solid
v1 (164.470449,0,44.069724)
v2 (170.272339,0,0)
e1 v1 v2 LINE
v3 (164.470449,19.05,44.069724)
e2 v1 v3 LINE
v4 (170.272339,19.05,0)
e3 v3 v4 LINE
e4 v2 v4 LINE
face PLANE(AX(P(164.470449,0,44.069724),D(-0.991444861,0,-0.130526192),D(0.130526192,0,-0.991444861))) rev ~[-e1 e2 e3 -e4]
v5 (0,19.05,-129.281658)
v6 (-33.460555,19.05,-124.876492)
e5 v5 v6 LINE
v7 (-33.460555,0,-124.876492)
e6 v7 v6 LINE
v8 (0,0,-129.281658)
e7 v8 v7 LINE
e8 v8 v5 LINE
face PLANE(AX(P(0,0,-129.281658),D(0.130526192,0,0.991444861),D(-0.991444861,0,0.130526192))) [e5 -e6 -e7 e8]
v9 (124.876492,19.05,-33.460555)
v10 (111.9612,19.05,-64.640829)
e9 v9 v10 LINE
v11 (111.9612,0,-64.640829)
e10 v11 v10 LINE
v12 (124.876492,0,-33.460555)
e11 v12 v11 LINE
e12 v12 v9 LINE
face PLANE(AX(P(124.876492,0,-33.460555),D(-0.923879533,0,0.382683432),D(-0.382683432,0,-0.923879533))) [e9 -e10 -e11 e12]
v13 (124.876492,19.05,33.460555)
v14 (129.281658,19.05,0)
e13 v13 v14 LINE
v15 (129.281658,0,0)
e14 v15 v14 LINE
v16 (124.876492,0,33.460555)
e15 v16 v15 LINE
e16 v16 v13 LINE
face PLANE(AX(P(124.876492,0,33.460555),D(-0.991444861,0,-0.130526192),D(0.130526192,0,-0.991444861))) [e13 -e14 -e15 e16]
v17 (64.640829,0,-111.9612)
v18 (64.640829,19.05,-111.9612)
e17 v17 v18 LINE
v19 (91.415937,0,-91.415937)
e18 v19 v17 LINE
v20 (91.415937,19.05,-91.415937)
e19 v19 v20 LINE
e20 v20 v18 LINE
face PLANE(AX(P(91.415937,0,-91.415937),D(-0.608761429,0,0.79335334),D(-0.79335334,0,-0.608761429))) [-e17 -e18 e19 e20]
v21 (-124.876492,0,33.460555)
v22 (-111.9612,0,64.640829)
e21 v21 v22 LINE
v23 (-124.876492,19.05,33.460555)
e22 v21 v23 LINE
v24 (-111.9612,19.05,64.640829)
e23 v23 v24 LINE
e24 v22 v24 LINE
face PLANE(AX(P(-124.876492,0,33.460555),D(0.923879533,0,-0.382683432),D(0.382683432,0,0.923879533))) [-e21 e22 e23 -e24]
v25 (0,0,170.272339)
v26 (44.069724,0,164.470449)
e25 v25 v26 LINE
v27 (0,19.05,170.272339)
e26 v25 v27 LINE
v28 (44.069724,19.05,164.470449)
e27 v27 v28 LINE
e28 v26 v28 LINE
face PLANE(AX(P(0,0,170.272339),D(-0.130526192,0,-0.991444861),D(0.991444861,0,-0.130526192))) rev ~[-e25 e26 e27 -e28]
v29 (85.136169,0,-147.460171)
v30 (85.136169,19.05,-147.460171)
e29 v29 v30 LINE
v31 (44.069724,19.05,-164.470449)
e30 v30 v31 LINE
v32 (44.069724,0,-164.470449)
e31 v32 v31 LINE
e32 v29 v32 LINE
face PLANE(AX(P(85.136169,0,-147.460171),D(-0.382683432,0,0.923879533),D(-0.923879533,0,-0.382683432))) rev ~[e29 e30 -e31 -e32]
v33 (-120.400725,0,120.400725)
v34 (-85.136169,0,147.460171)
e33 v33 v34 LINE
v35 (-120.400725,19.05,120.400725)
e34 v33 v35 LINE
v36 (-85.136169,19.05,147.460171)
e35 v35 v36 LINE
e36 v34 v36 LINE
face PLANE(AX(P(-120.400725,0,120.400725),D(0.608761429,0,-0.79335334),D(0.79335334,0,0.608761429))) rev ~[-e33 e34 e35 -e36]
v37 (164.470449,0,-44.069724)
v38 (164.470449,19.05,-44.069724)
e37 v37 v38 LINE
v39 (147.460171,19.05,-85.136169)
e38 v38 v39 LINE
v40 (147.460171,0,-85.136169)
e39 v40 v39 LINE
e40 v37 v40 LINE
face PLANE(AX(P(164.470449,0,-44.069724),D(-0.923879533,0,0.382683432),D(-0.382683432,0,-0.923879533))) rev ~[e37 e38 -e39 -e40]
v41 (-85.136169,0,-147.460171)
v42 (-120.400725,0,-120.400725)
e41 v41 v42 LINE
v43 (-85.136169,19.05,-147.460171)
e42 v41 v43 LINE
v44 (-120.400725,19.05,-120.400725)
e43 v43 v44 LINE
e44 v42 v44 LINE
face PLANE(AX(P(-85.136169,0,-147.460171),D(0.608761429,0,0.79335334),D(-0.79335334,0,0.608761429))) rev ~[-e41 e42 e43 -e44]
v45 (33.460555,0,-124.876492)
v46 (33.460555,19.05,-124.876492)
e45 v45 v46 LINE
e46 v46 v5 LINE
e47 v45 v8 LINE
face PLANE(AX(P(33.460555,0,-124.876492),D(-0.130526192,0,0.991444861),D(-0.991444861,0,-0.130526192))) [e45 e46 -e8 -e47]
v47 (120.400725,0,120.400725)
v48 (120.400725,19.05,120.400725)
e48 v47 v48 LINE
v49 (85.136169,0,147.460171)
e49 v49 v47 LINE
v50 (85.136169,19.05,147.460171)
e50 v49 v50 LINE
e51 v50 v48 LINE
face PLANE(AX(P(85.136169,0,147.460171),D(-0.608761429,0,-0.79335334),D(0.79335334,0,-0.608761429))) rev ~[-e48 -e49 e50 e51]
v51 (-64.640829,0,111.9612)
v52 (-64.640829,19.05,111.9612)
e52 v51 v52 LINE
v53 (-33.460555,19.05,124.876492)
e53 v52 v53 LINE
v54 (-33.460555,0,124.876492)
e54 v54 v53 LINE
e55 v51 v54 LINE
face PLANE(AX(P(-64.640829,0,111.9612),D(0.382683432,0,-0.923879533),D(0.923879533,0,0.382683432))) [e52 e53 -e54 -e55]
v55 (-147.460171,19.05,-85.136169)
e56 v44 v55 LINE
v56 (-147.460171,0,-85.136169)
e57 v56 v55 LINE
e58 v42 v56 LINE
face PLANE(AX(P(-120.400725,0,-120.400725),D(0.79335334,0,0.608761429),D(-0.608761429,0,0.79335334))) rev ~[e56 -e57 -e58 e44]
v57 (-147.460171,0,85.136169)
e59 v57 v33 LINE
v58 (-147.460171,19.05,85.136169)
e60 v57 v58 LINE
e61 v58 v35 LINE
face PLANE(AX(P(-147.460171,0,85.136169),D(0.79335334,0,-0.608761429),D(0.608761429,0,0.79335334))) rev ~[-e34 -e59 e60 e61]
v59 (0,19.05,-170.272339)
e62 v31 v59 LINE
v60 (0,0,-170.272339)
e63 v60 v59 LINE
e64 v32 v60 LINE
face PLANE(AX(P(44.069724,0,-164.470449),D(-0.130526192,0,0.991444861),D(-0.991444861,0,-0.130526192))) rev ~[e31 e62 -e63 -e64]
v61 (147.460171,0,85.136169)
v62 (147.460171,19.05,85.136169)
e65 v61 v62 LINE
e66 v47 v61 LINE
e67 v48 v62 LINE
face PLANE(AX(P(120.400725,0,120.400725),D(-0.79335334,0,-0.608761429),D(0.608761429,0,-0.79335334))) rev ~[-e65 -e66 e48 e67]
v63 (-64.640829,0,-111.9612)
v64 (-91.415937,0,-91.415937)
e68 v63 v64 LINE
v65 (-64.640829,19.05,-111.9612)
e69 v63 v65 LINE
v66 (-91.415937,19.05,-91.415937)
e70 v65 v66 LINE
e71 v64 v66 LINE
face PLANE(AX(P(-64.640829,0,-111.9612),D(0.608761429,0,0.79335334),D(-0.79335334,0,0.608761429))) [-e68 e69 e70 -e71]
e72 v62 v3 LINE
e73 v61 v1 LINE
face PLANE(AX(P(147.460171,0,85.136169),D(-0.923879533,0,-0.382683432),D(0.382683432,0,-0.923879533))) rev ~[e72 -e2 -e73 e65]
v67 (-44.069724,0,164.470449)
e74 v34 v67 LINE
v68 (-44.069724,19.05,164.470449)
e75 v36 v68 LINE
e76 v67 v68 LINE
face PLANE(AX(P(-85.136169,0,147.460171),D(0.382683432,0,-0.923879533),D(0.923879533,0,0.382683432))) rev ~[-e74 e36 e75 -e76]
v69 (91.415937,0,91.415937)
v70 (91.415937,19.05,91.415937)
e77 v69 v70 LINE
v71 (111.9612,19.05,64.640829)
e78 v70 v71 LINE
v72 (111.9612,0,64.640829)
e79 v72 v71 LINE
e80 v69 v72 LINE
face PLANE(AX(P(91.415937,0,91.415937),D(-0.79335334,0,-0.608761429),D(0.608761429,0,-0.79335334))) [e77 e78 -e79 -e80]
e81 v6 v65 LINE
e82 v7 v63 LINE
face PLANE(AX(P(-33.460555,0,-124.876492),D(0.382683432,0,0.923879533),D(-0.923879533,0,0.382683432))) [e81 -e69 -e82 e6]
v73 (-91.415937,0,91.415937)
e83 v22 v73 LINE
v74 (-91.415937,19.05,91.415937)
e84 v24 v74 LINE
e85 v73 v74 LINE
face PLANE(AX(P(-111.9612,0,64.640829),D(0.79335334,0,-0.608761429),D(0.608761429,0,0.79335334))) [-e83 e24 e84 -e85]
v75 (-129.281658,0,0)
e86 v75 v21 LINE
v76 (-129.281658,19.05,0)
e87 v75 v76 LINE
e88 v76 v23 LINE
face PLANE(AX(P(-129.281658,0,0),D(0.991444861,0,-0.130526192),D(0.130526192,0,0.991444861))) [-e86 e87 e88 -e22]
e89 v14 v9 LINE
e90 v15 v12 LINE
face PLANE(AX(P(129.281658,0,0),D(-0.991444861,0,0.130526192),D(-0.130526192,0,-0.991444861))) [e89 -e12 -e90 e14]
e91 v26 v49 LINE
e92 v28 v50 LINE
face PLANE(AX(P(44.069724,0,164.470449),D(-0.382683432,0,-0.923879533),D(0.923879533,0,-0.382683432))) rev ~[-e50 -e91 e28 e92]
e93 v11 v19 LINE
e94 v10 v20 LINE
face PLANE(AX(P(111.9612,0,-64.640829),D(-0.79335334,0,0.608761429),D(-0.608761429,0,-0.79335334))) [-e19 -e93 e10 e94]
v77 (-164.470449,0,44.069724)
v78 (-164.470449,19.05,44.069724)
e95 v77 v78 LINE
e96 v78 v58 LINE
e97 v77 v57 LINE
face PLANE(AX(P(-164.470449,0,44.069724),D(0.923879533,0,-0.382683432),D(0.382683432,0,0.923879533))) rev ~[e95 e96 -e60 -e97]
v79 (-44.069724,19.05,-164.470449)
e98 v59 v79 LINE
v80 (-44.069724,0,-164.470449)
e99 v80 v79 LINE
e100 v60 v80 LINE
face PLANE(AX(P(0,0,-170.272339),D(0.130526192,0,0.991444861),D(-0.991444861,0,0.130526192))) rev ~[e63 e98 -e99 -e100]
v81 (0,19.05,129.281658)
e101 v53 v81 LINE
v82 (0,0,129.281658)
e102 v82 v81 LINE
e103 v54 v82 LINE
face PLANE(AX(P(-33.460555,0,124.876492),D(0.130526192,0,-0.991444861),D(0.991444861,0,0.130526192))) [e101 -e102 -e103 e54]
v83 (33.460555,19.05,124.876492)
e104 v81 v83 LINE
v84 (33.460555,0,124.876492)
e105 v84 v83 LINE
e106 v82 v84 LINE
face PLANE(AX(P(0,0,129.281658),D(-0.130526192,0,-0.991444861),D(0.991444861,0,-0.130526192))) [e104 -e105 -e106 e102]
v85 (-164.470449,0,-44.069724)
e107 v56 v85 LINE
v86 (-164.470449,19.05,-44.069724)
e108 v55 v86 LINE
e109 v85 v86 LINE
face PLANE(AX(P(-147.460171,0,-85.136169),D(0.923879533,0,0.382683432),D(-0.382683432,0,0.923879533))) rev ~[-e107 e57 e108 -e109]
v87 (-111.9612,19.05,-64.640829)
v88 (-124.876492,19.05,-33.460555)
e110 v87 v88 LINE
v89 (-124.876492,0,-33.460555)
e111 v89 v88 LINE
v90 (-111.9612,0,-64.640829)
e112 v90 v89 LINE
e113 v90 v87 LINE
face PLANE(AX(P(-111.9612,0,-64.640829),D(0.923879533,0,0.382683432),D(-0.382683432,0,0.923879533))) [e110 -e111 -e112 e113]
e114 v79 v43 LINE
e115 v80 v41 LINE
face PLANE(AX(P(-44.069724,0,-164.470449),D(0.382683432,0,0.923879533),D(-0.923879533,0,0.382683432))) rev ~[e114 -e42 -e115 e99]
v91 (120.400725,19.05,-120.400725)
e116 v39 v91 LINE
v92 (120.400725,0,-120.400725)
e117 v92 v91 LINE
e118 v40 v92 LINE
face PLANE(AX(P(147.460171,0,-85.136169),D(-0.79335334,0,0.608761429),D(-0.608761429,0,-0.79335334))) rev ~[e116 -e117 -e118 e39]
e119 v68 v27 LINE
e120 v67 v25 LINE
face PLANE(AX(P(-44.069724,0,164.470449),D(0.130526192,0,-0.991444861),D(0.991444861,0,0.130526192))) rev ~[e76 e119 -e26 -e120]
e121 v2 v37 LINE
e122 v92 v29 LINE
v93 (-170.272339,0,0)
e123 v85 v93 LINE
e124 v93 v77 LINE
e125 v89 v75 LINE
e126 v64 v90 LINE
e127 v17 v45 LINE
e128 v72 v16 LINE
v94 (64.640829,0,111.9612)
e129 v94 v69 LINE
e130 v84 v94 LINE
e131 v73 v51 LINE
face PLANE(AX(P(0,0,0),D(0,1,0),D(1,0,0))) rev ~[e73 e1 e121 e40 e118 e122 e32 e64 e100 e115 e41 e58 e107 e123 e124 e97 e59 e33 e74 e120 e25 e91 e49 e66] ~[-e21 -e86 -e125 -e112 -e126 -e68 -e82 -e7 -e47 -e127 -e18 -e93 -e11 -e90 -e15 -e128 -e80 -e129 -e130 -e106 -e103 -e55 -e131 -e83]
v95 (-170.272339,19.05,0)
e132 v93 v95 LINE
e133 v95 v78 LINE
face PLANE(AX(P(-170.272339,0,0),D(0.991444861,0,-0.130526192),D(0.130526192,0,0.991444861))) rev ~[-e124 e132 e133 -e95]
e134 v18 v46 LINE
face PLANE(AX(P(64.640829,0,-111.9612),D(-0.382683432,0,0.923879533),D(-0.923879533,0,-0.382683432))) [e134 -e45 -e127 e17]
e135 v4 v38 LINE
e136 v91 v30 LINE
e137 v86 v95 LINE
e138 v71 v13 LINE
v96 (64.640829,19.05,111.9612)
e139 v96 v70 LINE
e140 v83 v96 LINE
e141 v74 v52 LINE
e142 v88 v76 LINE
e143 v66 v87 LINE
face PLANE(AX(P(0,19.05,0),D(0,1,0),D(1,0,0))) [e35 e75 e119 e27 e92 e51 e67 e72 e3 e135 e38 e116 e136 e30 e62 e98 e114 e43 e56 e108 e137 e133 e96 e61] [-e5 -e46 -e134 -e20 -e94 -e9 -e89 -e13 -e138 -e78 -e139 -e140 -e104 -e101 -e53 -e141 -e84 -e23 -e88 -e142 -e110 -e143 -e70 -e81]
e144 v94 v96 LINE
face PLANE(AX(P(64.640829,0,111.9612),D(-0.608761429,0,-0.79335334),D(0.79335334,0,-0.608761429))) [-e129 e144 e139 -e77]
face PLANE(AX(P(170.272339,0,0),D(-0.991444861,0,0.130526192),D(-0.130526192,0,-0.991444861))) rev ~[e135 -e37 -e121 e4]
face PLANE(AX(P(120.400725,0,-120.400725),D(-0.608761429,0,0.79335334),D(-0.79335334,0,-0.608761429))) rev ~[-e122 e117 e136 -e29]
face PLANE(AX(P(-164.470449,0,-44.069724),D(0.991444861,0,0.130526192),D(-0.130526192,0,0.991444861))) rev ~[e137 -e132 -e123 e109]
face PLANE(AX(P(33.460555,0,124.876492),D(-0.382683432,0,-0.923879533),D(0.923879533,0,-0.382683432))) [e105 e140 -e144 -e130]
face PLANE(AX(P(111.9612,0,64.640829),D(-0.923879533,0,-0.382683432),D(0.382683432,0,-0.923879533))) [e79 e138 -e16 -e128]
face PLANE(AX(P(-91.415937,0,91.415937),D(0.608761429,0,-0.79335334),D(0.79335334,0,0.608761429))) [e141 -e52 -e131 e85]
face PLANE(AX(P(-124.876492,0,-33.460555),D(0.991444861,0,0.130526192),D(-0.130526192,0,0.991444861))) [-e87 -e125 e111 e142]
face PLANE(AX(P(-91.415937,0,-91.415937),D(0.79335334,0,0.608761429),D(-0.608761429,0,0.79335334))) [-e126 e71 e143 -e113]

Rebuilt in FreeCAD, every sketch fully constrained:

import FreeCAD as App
import Part
import Sketcher

V = App.Vector
Q = App.Units.Quantity

doc = App.newDocument("Part")
body = doc.addObject("PartDesign::Body", "Body")

# Sketch on XZ plane
sketch1 = body.newObject("Sketcher::SketchObject", "Sketch")
sketch1.AttachmentSupport = (doc.getObject("XZ_Plane"), [""])
sketch1.MapMode = "FlatFace"
sketch1.addGeometry([
    Part.LineSegment(V(-170, 0, 0), V(-164, 44, 0)),  # 0
    Part.LineSegment(V(-164, 44, 0), V(-147, 85, 0)),  # 1
    Part.LineSegment(V(-147, 85, 0), V(-120, 120, 0)),  # 2
    Part.LineSegment(V(-120, 120, 0), V(-85, 147, 0)),  # 3
    Part.LineSegment(V(-85, 147, 0), V(-44, 164, 0)),  # 4
    Part.LineSegment(V(-44, 164, 0), V(0, 170, 0)),  # 5
    Part.LineSegment(V(0, 170, 0), V(44, 164, 0)),  # 6
    Part.LineSegment(V(44, 164, 0), V(85, 147, 0)),  # 7
    Part.LineSegment(V(85, 147, 0), V(120, 120, 0)),  # 8
    Part.LineSegment(V(120, 120, 0), V(147, 85, 0)),  # 9
    Part.LineSegment(V(147, 85, 0), V(164, 44, 0)),  # 10
    Part.LineSegment(V(164, 44, 0), V(170, 0, 0)),  # 11
    Part.LineSegment(V(170, 0, 0), V(164, -44, 0)),  # 12
    Part.LineSegment(V(164, -44, 0), V(147, -85, 0)),  # 13
    Part.LineSegment(V(147, -85, 0), V(120, -120, 0)),  # 14
    Part.LineSegment(V(120, -120, 0), V(85, -147, 0)),  # 15
    Part.LineSegment(V(85, -147, 0), V(44, -164, 0)),  # 16
    Part.LineSegment(V(44, -164, 0), V(0, -170, 0)),  # 17
    Part.LineSegment(V(0, -170, 0), V(-44, -164, 0)),  # 18
    Part.LineSegment(V(-44, -164, 0), V(-85, -147, 0)),  # 19
    Part.LineSegment(V(-85, -147, 0), V(-120, -120, 0)),  # 20
    Part.LineSegment(V(-120, -120, 0), V(-147, -85, 0)),  # 21
    Part.LineSegment(V(-147, -85, 0), V(-164, -44, 0)),  # 22
    Part.LineSegment(V(-164, -44, 0), V(-170, 0, 0)),  # 23
    Part.LineSegment(V(-125, 33, 0), V(-129, 0, 0)),  # 24
    Part.LineSegment(V(-129, 0, 0), V(-125, -33, 0)),  # 25
    Part.LineSegment(V(-125, -33, 0), V(-112, -65, 0)),  # 26
    Part.LineSegment(V(-112, -65, 0), V(-91, -91, 0)),  # 27
    Part.LineSegment(V(-91, -91, 0), V(-65, -112, 0)),  # 28
    Part.LineSegment(V(-65, -112, 0), V(-33, -125, 0)),  # 29
    Part.LineSegment(V(-33, -125, 0), V(0, -129, 0)),  # 30
    Part.LineSegment(V(0, -129, 0), V(33, -125, 0)),  # 31
    Part.LineSegment(V(33, -125, 0), V(65, -112, 0)),  # 32
    Part.LineSegment(V(65, -112, 0), V(91, -91, 0)),  # 33
    Part.LineSegment(V(91, -91, 0), V(112, -65, 0)),  # 34
    Part.LineSegment(V(112, -65, 0), V(125, -33, 0)),  # 35
    Part.LineSegment(V(125, -33, 0), V(129, 0, 0)),  # 36
    Part.LineSegment(V(129, 0, 0), V(125, 33, 0)),  # 37
    Part.LineSegment(V(125, 33, 0), V(112, 65, 0)),  # 38
    Part.LineSegment(V(112, 65, 0), V(91, 91, 0)),  # 39
    Part.LineSegment(V(91, 91, 0), V(65, 112, 0)),  # 40
    Part.LineSegment(V(65, 112, 0), V(33, 125, 0)),  # 41
    Part.LineSegment(V(33, 125, 0), V(0, 129, 0)),  # 42
    Part.LineSegment(V(0, 129, 0), V(-33, 125, 0)),  # 43
    Part.LineSegment(V(-33, 125, 0), V(-65, 112, 0)),  # 44
    Part.LineSegment(V(-65, 112, 0), V(-91, 91, 0)),  # 45
    Part.LineSegment(V(-91, 91, 0), V(-112, 65, 0)),  # 46
    Part.LineSegment(V(-112, 65, 0), V(-125, 33, 0)),  # 47
], False)
sketch1.addConstraint([
    Sketcher.Constraint("Coincident", 0, 2, 1, 1),
    Sketcher.Constraint("Coincident", 1, 2, 2, 1),
    Sketcher.Constraint("Coincident", 2, 2, 3, 1),
    Sketcher.Constraint("Coincident", 3, 2, 4, 1),
    Sketcher.Constraint("Coincident", 4, 2, 5, 1),
    Sketcher.Constraint("Coincident", 5, 2, 6, 1),
    Sketcher.Constraint("Coincident", 6, 2, 7, 1),
    Sketcher.Constraint("Coincident", 7, 2, 8, 1),
    Sketcher.Constraint("Coincident", 8, 2, 9, 1),
    Sketcher.Constraint("Coincident", 9, 2, 10, 1),
    Sketcher.Constraint("Coincident", 10, 2, 11, 1),
    Sketcher.Constraint("Coincident", 11, 2, 12, 1),
    Sketcher.Constraint("Coincident", 12, 2, 13, 1),
    Sketcher.Constraint("Coincident", 13, 2, 14, 1),
    Sketcher.Constraint("Coincident", 14, 2, 15, 1),
    Sketcher.Constraint("Coincident", 15, 2, 16, 1),
    Sketcher.Constraint("Coincident", 16, 2, 17, 1),
    Sketcher.Constraint("Coincident", 17, 2, 18, 1),
    Sketcher.Constraint("Coincident", 18, 2, 19, 1),
    Sketcher.Constraint("Coincident", 19, 2, 20, 1),
    Sketcher.Constraint("Coincident", 20, 2, 21, 1),
    Sketcher.Constraint("Coincident", 21, 2, 22, 1),
    Sketcher.Constraint("Coincident", 22, 2, 23, 1),
    Sketcher.Constraint("Coincident", 23, 2, 0, 1),
    Sketcher.Constraint("Coincident", 24, 2, 25, 1),
    Sketcher.Constraint("Coincident", 25, 2, 26, 1),
    Sketcher.Constraint("Coincident", 26, 2, 27, 1),
    Sketcher.Constraint("Coincident", 27, 2, 28, 1),
    Sketcher.Constraint("Coincident", 28, 2, 29, 1),
    Sketcher.Constraint("Coincident", 29, 2, 30, 1),
    Sketcher.Constraint("Coincident", 30, 2, 31, 1),
    Sketcher.Constraint("Coincident", 31, 2, 32, 1),
    Sketcher.Constraint("Coincident", 32, 2, 33, 1),
    Sketcher.Constraint("Coincident", 33, 2, 34, 1),
    Sketcher.Constraint("Coincident", 34, 2, 35, 1),
    Sketcher.Constraint("Coincident", 35, 2, 36, 1),
    Sketcher.Constraint("Coincident", 36, 2, 37, 1),
    Sketcher.Constraint("Coincident", 37, 2, 38, 1),
    Sketcher.Constraint("Coincident", 38, 2, 39, 1),
    Sketcher.Constraint("Coincident", 39, 2, 40, 1),
    Sketcher.Constraint("Coincident", 40, 2, 41, 1),
    Sketcher.Constraint("Coincident", 41, 2, 42, 1),
    Sketcher.Constraint("Coincident", 42, 2, 43, 1),
    Sketcher.Constraint("Coincident", 43, 2, 44, 1),
    Sketcher.Constraint("Coincident", 44, 2, 45, 1),
    Sketcher.Constraint("Coincident", 45, 2, 46, 1),
    Sketcher.Constraint("Coincident", 46, 2, 47, 1),
    Sketcher.Constraint("Coincident", 47, 2, 24, 1),
    Sketcher.Constraint("Symmetric", 0, 2, 12, 2, -1, 1),
    Sketcher.Constraint("Symmetric", 1, 2, 13, 2, -1, 1),
    Sketcher.Constraint("Symmetric", 2, 2, 14, 2, -1, 1),
    Sketcher.Constraint("Symmetric", 3, 2, 15, 2, -1, 1),
    Sketcher.Constraint("Symmetric", 4, 2, 16, 2, -1, 1),
    Sketcher.Constraint("Symmetric", 5, 2, 17, 2, -1, 1),
    Sketcher.Constraint("Symmetric", 6, 2, 18, 2, -1, 1),
    Sketcher.Constraint("Symmetric", 7, 2, 19, 2, -1, 1),
    Sketcher.Constraint("Symmetric", 8, 2, 20, 2, -1, 1),
    Sketcher.Constraint("Symmetric", 9, 2, 21, 2, -1, 1),
    Sketcher.Constraint("Symmetric", 10, 2, 22, 2, -1, 1),
    Sketcher.Constraint("Symmetric", 11, 2, 23, 2, -1, 1),
    Sketcher.Constraint("Symmetric", 24, 2, 36, 2, -1, 1),
    Sketcher.Constraint("Symmetric", 25, 2, 37, 2, -1, 1),
    Sketcher.Constraint("Symmetric", 26, 2, 38, 2, -1, 1),
    Sketcher.Constraint("Symmetric", 27, 2, 39, 2, -1, 1),
    Sketcher.Constraint("Symmetric", 28, 2, 40, 2, -1, 1),
    Sketcher.Constraint("Symmetric", 29, 2, 41, 2, -1, 1),
    Sketcher.Constraint("Symmetric", 30, 2, 42, 2, -1, 1),
    Sketcher.Constraint("Symmetric", 31, 2, 43, 2, -1, 1),
    Sketcher.Constraint("Symmetric", 32, 2, 44, 2, -1, 1),
    Sketcher.Constraint("Symmetric", 33, 2, 45, 2, -1, 1),
    Sketcher.Constraint("Symmetric", 34, 2, 46, 2, -1, 1),
    Sketcher.Constraint("Symmetric", 35, 2, 47, 2, -1, 1),
    Sketcher.Constraint("Symmetric", 4, 2, 6, 2, -2),
    Sketcher.Constraint("Symmetric", 3, 2, 7, 2, -2),
    Sketcher.Constraint("Symmetric", 2, 2, 8, 2, -2),
    Sketcher.Constraint("Symmetric", 1, 2, 9, 2, -2),
    Sketcher.Constraint("Symmetric", 0, 2, 10, 2, -2),
    Sketcher.Constraint("Symmetric", 29, 2, 31, 2, -2),
    Sketcher.Constraint("Symmetric", 28, 2, 32, 2, -2),
    Sketcher.Constraint("Symmetric", 27, 2, 33, 2, -2),
    Sketcher.Constraint("Symmetric", 26, 2, 34, 2, -2),
    Sketcher.Constraint("Symmetric", 25, 2, 35, 2, -2),
    Sketcher.Constraint("PointOnObject", 5, 2, -2),
    Sketcher.Constraint("PointOnObject", 11, 2, -1),
    Sketcher.Constraint("PointOnObject", 24, 2, -1),
    Sketcher.Constraint("PointOnObject", 30, 2, -2),
    Sketcher.Constraint("Perpendicular", 0, 6),
    Sketcher.Constraint("Perpendicular", 1, 7),
    Sketcher.Constraint("Perpendicular", 2, 8),
    Sketcher.Constraint("Perpendicular", 18, 24),
    Sketcher.Constraint("Parallel", 22, 26),
    Sketcher.Constraint("Parallel", 21, 27),
    Sketcher.Constraint("Parallel", 20, 28),
    Sketcher.Constraint("Parallel", 19, 29),
    Sketcher.Constraint("Perpendicular", 24, 30),
    Sketcher.Constraint("Equal", 0, 1),
    Sketcher.Constraint("Equal", 1, 2),
    Sketcher.Constraint("Equal", 2, 3),
    Sketcher.Constraint("Equal", 3, 4),
    Sketcher.Constraint("Equal", 4, 5),
    Sketcher.Constraint("Equal", 25, 26),
    Sketcher.Constraint("Equal", 26, 27),
    Sketcher.Constraint("Equal", 27, 28),
    Sketcher.Constraint("Equal", 28, 29),
    Sketcher.Constraint("Equal", 29, 30),
    Sketcher.Constraint("Angle", 0, Q("82.5 deg")),
    Sketcher.Constraint("Angle", 1, Q("67.5 deg")),
    Sketcher.Constraint("Angle", 2, Q("52.5 deg")),
    Sketcher.Constraint("Distance", 0, Q("1.75 in")),
    Sketcher.Constraint("DistanceX", 26, 2, -1, 1, 111.9612),
])
pad1 = body.newObject("PartDesign::Pad", "Pad")
pad1.Profile = sketch1
pad1.Length = Q("0.75 in")
pad1.Reversed = True

doc.recompute()
